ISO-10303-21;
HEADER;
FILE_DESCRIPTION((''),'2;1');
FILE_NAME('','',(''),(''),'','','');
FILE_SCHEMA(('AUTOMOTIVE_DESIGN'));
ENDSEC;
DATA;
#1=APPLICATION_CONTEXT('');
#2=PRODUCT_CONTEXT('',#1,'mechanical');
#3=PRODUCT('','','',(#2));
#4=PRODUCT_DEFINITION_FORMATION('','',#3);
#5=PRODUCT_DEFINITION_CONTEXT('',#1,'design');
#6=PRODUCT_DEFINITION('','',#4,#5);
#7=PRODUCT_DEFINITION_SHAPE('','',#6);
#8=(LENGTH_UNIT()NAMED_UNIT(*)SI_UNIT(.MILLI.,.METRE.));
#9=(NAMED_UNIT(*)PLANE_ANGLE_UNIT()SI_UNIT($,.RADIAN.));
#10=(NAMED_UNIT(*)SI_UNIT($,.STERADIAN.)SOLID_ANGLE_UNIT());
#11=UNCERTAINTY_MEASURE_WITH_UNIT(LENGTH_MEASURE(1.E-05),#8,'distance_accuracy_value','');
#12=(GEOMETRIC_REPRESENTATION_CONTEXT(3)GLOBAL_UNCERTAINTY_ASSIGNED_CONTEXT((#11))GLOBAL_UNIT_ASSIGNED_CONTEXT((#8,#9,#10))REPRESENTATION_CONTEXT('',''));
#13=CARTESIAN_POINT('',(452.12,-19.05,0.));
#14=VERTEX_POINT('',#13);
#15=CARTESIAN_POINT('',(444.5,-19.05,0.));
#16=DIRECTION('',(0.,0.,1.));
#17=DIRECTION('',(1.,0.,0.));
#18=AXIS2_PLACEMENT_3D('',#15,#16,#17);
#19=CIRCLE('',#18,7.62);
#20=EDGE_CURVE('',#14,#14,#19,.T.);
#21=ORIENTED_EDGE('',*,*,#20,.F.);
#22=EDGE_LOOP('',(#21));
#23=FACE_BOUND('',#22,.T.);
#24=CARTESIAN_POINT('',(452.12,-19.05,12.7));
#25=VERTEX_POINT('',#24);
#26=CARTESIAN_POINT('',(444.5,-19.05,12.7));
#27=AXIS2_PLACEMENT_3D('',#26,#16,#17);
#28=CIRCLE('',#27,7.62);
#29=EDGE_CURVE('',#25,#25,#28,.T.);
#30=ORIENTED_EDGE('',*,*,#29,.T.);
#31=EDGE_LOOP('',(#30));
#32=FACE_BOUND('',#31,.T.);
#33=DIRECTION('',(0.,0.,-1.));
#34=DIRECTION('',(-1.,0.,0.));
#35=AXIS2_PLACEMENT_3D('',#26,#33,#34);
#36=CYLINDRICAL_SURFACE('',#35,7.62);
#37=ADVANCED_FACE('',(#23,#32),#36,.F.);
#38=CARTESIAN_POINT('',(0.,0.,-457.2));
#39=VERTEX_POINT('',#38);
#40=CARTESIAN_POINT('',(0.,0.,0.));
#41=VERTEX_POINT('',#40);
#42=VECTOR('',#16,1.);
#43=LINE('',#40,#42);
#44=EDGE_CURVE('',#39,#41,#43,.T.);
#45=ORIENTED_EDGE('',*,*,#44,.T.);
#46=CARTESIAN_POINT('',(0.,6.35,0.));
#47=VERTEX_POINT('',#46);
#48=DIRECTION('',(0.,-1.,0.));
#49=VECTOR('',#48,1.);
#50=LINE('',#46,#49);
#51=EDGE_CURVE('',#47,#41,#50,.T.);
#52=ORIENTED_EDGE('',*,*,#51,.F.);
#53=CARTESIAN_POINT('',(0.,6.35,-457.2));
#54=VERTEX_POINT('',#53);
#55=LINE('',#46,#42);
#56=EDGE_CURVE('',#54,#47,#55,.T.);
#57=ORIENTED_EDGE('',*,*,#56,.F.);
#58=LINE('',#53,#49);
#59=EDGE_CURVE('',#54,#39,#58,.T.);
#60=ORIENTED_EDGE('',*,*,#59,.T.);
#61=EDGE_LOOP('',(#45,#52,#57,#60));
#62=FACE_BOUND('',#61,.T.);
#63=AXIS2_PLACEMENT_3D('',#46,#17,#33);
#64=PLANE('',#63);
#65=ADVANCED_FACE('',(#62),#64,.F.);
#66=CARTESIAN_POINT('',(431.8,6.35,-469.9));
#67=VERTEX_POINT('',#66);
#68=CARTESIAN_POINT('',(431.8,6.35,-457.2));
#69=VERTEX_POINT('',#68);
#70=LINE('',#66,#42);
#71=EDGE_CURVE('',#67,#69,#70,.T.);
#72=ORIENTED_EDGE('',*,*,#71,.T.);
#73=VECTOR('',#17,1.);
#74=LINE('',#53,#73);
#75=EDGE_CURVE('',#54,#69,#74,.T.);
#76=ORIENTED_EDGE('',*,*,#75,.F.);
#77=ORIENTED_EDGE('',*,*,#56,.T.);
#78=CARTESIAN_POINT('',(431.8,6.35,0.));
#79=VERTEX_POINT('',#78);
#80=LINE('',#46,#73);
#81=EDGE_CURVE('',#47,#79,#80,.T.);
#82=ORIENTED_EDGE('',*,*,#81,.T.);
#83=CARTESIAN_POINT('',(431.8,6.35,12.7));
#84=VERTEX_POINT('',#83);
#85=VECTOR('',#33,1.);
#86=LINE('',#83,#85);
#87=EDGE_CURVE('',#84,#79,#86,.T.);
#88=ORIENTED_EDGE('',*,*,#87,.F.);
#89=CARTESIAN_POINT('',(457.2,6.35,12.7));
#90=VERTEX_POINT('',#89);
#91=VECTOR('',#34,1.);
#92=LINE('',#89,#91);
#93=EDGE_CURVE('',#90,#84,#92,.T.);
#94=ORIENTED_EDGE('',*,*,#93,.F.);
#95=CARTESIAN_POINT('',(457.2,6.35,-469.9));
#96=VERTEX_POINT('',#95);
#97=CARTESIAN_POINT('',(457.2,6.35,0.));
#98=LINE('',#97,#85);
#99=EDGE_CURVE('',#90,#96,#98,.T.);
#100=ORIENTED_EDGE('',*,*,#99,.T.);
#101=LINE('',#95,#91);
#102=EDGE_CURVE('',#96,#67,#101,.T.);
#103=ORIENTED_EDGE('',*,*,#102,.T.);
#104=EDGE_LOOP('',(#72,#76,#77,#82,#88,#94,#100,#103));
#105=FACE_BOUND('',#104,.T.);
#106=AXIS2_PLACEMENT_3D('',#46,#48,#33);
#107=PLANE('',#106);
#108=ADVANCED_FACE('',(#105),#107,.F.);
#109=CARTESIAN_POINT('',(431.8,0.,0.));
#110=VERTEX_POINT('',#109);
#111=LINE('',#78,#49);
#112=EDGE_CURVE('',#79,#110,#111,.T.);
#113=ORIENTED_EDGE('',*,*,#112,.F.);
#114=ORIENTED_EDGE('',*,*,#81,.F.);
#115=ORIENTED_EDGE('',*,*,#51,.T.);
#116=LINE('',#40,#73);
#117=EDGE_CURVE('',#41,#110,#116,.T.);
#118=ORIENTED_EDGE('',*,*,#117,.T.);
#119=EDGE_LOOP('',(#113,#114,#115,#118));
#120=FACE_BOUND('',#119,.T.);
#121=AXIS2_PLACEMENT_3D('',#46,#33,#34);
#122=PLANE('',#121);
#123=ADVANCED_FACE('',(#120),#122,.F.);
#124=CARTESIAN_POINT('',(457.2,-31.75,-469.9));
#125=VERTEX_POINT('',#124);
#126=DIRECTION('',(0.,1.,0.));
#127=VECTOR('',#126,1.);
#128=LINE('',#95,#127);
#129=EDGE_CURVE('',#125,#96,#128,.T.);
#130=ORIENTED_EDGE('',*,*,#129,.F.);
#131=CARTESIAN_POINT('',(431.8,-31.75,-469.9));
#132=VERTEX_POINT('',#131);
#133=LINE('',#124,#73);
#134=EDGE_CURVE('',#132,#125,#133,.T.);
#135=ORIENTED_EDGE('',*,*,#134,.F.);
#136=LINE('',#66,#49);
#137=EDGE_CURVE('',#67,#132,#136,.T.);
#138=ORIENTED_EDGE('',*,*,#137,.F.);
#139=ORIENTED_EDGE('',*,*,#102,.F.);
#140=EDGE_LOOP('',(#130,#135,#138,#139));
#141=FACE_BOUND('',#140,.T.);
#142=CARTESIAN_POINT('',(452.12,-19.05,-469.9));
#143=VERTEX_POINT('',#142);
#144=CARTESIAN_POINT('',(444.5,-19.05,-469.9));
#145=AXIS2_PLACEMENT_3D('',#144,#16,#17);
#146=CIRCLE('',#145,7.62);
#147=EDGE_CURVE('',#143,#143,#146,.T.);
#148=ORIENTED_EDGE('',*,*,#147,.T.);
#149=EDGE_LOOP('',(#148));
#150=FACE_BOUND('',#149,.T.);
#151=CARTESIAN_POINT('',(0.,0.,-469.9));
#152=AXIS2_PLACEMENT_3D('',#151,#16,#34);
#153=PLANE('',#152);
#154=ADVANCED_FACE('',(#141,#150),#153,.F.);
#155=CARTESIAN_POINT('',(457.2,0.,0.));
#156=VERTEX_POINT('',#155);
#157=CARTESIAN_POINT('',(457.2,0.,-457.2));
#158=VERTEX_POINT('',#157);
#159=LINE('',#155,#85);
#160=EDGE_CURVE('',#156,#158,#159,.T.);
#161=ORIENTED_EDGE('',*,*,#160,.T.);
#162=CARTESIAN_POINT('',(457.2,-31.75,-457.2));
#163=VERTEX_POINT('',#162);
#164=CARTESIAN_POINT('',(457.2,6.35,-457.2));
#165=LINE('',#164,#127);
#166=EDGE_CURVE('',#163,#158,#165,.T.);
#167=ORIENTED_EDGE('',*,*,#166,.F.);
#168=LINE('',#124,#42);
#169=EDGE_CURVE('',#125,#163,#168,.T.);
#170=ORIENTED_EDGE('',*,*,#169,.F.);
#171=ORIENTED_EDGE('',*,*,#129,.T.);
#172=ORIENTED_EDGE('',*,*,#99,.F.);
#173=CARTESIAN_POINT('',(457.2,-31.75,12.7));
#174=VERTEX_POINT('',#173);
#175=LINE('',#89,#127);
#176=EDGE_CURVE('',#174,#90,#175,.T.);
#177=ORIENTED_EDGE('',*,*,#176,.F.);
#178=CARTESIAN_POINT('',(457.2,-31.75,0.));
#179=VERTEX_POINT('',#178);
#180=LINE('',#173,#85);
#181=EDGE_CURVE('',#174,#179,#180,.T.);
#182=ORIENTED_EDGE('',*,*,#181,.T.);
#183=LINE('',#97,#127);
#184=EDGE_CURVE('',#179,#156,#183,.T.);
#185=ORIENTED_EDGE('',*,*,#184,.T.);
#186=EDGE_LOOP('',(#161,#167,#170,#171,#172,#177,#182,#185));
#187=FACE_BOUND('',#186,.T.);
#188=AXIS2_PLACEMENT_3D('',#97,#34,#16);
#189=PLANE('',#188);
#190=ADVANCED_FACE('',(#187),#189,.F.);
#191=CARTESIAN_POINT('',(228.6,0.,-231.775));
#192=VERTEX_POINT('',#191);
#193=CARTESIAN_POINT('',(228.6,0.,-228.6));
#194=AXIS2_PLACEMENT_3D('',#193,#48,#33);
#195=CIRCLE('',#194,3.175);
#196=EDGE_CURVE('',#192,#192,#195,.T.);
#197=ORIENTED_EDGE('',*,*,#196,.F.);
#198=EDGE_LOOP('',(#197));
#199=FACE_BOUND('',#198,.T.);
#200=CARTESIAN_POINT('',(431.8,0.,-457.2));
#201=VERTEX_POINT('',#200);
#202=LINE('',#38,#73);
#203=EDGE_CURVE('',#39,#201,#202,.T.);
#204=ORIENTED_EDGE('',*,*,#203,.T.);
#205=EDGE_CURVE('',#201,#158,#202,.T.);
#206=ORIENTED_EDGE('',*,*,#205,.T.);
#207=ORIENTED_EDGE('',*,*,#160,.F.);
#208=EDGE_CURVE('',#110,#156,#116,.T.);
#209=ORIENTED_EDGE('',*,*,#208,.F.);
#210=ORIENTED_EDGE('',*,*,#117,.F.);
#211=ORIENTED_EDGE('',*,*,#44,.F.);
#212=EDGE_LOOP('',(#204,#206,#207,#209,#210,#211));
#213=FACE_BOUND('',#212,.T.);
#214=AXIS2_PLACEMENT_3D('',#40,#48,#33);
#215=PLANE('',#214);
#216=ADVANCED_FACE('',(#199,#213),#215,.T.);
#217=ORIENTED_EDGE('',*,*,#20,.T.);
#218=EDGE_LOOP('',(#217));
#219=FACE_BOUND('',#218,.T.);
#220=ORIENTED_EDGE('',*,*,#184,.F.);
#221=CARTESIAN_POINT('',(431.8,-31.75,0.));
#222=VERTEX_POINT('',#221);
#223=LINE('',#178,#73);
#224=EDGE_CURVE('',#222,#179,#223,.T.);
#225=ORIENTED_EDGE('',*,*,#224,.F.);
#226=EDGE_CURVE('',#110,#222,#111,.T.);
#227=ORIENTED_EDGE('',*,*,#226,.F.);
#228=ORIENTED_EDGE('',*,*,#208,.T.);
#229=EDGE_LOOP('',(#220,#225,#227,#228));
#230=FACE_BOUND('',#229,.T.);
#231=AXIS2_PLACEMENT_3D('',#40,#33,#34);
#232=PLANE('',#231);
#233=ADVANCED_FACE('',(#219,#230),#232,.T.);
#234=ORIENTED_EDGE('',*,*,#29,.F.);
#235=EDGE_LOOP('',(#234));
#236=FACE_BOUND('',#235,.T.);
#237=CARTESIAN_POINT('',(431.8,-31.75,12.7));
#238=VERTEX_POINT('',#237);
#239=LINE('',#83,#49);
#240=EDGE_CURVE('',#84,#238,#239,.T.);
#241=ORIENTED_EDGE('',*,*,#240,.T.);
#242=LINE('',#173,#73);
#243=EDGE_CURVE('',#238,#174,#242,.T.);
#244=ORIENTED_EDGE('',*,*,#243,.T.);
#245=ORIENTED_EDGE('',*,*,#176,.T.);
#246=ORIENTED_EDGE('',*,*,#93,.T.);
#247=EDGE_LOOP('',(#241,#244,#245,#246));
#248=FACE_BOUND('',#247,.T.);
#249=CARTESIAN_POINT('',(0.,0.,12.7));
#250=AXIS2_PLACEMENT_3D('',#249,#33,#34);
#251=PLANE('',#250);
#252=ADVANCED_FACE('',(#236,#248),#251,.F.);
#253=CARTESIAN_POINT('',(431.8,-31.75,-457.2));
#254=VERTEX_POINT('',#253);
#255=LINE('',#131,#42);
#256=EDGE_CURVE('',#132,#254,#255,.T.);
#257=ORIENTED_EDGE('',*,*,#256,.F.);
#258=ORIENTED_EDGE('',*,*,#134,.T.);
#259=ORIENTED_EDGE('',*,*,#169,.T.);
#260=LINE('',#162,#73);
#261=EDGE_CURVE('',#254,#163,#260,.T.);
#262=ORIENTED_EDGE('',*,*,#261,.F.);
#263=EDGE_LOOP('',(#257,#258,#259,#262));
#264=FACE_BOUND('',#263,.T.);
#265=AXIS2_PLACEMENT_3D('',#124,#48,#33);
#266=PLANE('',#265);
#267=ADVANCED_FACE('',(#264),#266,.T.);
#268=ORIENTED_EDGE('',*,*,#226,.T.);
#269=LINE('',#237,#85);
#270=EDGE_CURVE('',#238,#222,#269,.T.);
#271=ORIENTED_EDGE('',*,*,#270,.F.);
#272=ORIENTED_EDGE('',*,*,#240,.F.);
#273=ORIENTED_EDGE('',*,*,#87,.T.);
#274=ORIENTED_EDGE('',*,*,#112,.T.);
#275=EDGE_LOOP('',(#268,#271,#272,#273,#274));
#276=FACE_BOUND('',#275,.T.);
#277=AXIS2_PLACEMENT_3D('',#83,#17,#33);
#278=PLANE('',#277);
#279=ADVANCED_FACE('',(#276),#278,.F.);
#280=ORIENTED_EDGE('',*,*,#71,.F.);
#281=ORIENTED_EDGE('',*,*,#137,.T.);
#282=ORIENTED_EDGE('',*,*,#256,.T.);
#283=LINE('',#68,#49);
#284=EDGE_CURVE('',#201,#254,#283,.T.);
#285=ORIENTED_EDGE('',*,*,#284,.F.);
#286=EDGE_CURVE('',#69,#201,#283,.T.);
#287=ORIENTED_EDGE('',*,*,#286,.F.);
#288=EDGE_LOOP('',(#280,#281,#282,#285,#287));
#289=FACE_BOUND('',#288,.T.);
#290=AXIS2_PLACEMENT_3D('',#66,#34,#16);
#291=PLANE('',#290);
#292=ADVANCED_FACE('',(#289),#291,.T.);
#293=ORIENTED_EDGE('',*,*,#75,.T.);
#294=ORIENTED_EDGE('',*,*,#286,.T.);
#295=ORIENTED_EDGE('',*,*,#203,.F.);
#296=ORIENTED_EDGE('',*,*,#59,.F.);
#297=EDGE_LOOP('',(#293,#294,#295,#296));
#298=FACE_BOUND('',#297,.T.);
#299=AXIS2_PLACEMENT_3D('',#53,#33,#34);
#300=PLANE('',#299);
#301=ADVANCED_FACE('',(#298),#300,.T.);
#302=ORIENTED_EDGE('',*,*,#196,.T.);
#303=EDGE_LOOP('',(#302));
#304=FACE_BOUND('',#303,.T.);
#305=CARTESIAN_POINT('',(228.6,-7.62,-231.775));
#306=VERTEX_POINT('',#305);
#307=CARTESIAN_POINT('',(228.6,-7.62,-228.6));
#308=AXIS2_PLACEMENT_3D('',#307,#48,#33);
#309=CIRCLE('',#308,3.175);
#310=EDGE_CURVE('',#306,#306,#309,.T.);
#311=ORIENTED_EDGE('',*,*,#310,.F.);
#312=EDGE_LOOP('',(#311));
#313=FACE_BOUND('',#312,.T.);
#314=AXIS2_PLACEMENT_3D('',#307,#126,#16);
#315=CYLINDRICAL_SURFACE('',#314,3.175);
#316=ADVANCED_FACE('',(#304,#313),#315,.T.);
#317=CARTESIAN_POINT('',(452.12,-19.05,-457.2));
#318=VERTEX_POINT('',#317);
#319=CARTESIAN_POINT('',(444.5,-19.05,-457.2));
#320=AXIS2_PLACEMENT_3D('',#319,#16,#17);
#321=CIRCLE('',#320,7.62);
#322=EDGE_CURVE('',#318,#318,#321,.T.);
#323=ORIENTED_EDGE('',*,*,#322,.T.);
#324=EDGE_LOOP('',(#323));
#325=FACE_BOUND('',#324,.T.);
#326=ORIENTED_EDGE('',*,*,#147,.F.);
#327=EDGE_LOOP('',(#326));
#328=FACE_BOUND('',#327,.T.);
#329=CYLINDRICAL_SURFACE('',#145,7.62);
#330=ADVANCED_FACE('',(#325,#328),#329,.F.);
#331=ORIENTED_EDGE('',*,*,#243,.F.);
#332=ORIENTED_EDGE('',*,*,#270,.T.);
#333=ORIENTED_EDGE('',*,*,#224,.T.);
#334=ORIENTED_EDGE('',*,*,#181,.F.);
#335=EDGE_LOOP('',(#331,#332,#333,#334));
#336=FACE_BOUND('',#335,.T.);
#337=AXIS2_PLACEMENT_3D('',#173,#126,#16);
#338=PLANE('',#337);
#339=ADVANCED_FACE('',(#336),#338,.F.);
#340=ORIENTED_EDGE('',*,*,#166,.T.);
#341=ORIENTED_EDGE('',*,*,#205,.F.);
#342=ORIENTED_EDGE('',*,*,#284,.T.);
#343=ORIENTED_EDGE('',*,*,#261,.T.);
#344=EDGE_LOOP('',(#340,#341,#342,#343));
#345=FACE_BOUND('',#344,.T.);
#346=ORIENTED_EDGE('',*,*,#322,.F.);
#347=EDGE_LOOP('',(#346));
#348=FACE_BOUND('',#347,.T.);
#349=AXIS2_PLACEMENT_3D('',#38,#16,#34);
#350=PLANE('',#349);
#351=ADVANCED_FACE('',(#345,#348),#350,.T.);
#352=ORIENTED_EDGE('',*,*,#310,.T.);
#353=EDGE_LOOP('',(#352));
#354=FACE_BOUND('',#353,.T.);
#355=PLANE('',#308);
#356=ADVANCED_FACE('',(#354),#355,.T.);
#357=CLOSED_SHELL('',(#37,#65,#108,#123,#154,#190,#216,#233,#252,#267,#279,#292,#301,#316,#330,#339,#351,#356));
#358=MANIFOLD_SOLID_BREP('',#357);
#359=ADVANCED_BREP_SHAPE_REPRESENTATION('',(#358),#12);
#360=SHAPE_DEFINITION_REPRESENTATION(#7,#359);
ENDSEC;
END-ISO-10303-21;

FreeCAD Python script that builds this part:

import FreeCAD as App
import Part
import Sketcher
Q = App.Units.Quantity


def add_polygon(sketch, points):
    """Adds a closed chain of lines whose ends are joined by coincident constraints."""
    first, n = sketch.GeometryCount, len(points)
    for a, b in zip(points, points[1:] + points[:1]):
        sketch.addGeometry(Part.LineSegment(App.Vector(*a, 0), App.Vector(*b, 0)), False)
    for i in range(n):
        sketch.addConstraint(Sketcher.Constraint("Coincident", first + i, 2, first + (i + 1) % n, 1))

doc = App.newDocument("Part")
body = doc.addObject("PartDesign::Body", "Body")

# Sketch on XZ plane
sketch1 = doc.addObject("Sketcher::SketchObject", "Sketch")
body.addObject(sketch1)
sketch1.AttachmentSupport = (doc.XZ_Plane, [""])
sketch1.MapMode = "FlatFace"
add_polygon(sketch1, [(0, -229), (0, 0), (457, 0), (457, -229)])  # lines 0-3
sketch1.addConstraint([
    Sketcher.Constraint("Vertical", 0),
    Sketcher.Constraint("Horizontal", 1),
    Sketcher.Constraint("Vertical", 2),
    Sketcher.Constraint("Horizontal", 3),
    Sketcher.Constraint("Coincident", 0, 2, -1, 1),
    Sketcher.Constraint("DistanceX", 1, 1, 1, 2, Q("18 in")),
    Sketcher.Constraint("DistanceY", 0, 1, 0, 2, Q("9 in")),
])
pad1 = doc.addObject("PartDesign::Pad", "Pad")
body.addObject(pad1)
pad1.Profile = sketch1
pad1.Length = Q("0.25 in")
pad1.Reversed = True

# Sketch on XY plane
sketch2 = doc.addObject("Sketcher::SketchObject", "Sketch001")
body.addObject(sketch2)
sketch2.AttachmentSupport = (doc.XY_Plane, [""])
sketch2.MapMode = "FlatFace"
add_polygon(sketch2, [(432, 6), (432, -32), (457, -32), (457, 6)])  # lines 0-3
sketch2.addGeometry(Part.Circle(App.Vector(444, -19, 0), App.Vector(0, 0, 1), 8), False)  # 4
sketch2.addConstraint([
    Sketcher.Constraint("Vertical", 0),
    Sketcher.Constraint("Horizontal", 1),
    Sketcher.Constraint("Vertical", 2),
    Sketcher.Constraint("Horizontal", 3),
    Sketcher.Constraint("Diameter", 4, Q("0.6 in")),
    Sketcher.Constraint("DistanceX", 1, 1, 1, 2, Q("1 in")),
    Sketcher.Constraint("DistanceY", 0, 2, 0, 1, Q("1.5 in")),
    Sketcher.Constraint("DistanceX", -1, 1, 0, 2, Q("17 in")),
    Sketcher.Constraint("DistanceY", 4, 3, 2, 2, Q("1 in")),
    Sketcher.Constraint("DistanceX", -1, 1, 4, 3, Q("17.5 in")),
    Sketcher.Constraint("DistanceY", 4, 3, -1, 1, Q("0.75 in")),
])
pad2 = doc.addObject("PartDesign::Pad", "Pad001")
body.addObject(pad2)
pad2.Profile = sketch2
pad2.Length = Q("0.5 in")
doc.recompute()

datumplane = doc.addObject("PartDesign::Plane", "DatumPlane")
body.addObject(datumplane)
datumplane.AttachmentSupport = (doc.XY_Plane, [""])
datumplane.MapMode = "FlatFace"
datumplane.AttachmentOffset = App.Placement(App.Vector(0, 0, -9 * 25.4), App.Rotation())
mirrored = doc.addObject("PartDesign::Mirrored", "Mirrored")
body.addObject(mirrored)
mirrored.Originals = [pad1, pad2]
mirrored.MirrorPlane = (datumplane, [""])
body.Tip = mirrored

# Sketch on XZ plane
sketch3 = doc.addObject("Sketcher::SketchObject", "Sketch002")
body.addObject(sketch3)
sketch3.AttachmentSupport = (doc.XZ_Plane, [""])
sketch3.MapMode = "FlatFace"
sketch3.addGeometry(Part.Circle(App.Vector(228.6, -228.6, 0), App.Vector(0, 0, 1), 3.2), False)
sketch3.addConstraint([
    Sketcher.Constraint("Diameter", 0, Q("0.25 in")),
    Sketcher.Constraint("DistanceX", -1, 1, 0, 3, Q("9 in")),
    Sketcher.Constraint("DistanceY", 0, 3, -1, 1, Q("9 in")),
])
pad3 = doc.addObject("PartDesign::Pad", "Pad002")
body.addObject(pad3)
pad3.Profile = sketch3
pad3.Length = Q("0.3 in")

doc.recompute()
